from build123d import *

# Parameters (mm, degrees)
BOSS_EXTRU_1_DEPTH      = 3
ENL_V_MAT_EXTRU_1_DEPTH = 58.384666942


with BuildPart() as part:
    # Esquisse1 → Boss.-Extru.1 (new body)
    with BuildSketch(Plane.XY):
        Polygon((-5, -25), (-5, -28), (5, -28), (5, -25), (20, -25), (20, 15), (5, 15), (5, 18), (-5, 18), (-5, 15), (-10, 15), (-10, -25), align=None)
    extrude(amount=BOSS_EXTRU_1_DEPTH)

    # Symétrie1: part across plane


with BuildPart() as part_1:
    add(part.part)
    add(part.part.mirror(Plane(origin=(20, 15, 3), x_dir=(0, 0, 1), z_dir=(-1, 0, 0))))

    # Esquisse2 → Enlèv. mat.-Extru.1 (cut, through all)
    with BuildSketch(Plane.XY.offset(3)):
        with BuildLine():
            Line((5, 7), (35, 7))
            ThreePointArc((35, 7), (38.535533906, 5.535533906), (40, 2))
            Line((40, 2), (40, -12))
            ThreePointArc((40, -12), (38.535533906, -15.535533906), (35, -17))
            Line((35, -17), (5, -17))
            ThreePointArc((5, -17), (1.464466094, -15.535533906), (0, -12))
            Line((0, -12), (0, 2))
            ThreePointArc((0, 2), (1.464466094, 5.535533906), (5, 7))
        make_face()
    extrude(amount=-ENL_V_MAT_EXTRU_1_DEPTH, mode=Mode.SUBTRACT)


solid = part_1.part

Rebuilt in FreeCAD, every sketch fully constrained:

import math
import FreeCAD as App
import Part
import Sketcher

V = App.Vector
Q = App.Units.Quantity

doc = App.newDocument("Part")
body = doc.addObject("PartDesign::Body", "Body")

sketch1 = doc.addObject("Sketcher::SketchObject", "Sketch")
body.addObject(sketch1)
sketch1.AttachmentSupport = (doc.XY_Plane, [""])
sketch1.MapMode = "FlatFace"
sketch1.addGeometry(Part.LineSegment(V(-5, -25, 0), V(-5, -28, 0)), False)
sketch1.addGeometry(Part.LineSegment(V(-5, -28, 0), V(5, -28, 0)), False)
sketch1.addGeometry(Part.LineSegment(V(5, -28, 0), V(5, -25, 0)), False)
sketch1.addGeometry(Part.LineSegment(V(5, -25, 0), V(20, -25, 0)), False)
sketch1.addGeometry(Part.LineSegment(V(20, -25, 0), V(20, 15, 0)), False)
sketch1.addGeometry(Part.LineSegment(V(20, 15, 0), V(5, 15, 0)), False)
sketch1.addGeometry(Part.LineSegment(V(5, 15, 0), V(5, 18, 0)), False)
sketch1.addGeometry(Part.LineSegment(V(5, 18, 0), V(-5, 18, 0)), False)
sketch1.addGeometry(Part.LineSegment(V(-5, 18, 0), V(-5, 15, 0)), False)
sketch1.addGeometry(Part.LineSegment(V(-5, 15, 0), V(-10, 15, 0)), False)
sketch1.addGeometry(Part.LineSegment(V(-10, 15, 0), V(-10, -25, 0)), False)
sketch1.addGeometry(Part.LineSegment(V(-10, -25, 0), V(-5, -25, 0)), False)
sketch1.addConstraint(Sketcher.Constraint("Coincident", 0, 2, 1, 1))
sketch1.addConstraint(Sketcher.Constraint("Coincident", 1, 2, 2, 1))
sketch1.addConstraint(Sketcher.Constraint("Coincident", 2, 2, 3, 1))
sketch1.addConstraint(Sketcher.Constraint("Coincident", 3, 2, 4, 1))
sketch1.addConstraint(Sketcher.Constraint("Coincident", 4, 2, 5, 1))
sketch1.addConstraint(Sketcher.Constraint("Coincident", 5, 2, 6, 1))
sketch1.addConstraint(Sketcher.Constraint("Coincident", 6, 2, 7, 1))
sketch1.addConstraint(Sketcher.Constraint("Coincident", 7, 2, 8, 1))
sketch1.addConstraint(Sketcher.Constraint("Coincident", 8, 2, 9, 1))
sketch1.addConstraint(Sketcher.Constraint("Coincident", 9, 2, 10, 1))
sketch1.addConstraint(Sketcher.Constraint("Coincident", 10, 2, 11, 1))
sketch1.addConstraint(Sketcher.Constraint("Coincident", 11, 2, 0, 1))
sketch1.addConstraint(Sketcher.Constraint("Vertical", 0))
sketch1.addConstraint(Sketcher.Constraint("Horizontal", 1))
sketch1.addConstraint(Sketcher.Constraint("Vertical", 2))
sketch1.addConstraint(Sketcher.Constraint("Horizontal", 3))
sketch1.addConstraint(Sketcher.Constraint("Vertical", 4))
sketch1.addConstraint(Sketcher.Constraint("Horizontal", 5))
sketch1.addConstraint(Sketcher.Constraint("Vertical", 6))
sketch1.addConstraint(Sketcher.Constraint("Horizontal", 7))
sketch1.addConstraint(Sketcher.Constraint("Vertical", 8))
sketch1.addConstraint(Sketcher.Constraint("Horizontal", 9))
sketch1.addConstraint(Sketcher.Constraint("Vertical", 10))
sketch1.addConstraint(Sketcher.Constraint("Horizontal", 11))
sketch1.addConstraint(Sketcher.Constraint("Symmetric", 5, 2, 8, 2, -2))
sketch1.addConstraint(Sketcher.Constraint("Symmetric", 2, 2, 11, 2, -2))
sketch1.addConstraint(Sketcher.Constraint("Vertical", 2, 2, 5, 2))
sketch1.addConstraint(Sketcher.Constraint("Equal", 2, 6))
sketch1.addConstraint(Sketcher.Constraint("DistanceX", 1, 1, 1, 2, Q("10 mm")))
sketch1.addConstraint(Sketcher.Constraint("DistanceX", 3, 1, 3, 2, Q("15 mm")))
sketch1.addConstraint(Sketcher.Constraint("DistanceX", 9, 2, 9, 1, Q("5 mm")))
sketch1.addConstraint(Sketcher.Constraint("DistanceY", 0, 2, 0, 1, Q("3 mm")))
sketch1.addConstraint(Sketcher.Constraint("DistanceY", 4, 1, 4, 2, Q("40 mm")))
sketch1.addConstraint(Sketcher.Constraint("DistanceY", 0, 2, -1, 1, Q("28 mm")))
pad1 = doc.addObject("PartDesign::Pad", "Pad")
body.addObject(pad1)
pad1.Profile = sketch1
pad1.Length = 3
body2 = doc.addObject("PartDesign::Body", "Body001")
doc.recompute()

body2.BaseFeature = body
doc.recompute()

mirroring = doc.addObject("Part::Mirroring", "Mirroring")
mirroring.Source = body
mirroring.Base = V(20, 15, 3)
mirroring.Normal = V(-1, 0, 0)
body3 = doc.addObject("PartDesign::Body", "Body002")
body3.BaseFeature = mirroring
boolean = doc.addObject("PartDesign::Boolean", "Boolean")
body2.addObject(boolean)
boolean.Type = "Fuse"
boolean.addObjects([body3])
doc.recompute()

sketch2 = doc.addObject("Sketcher::SketchObject", "Sketch001")
body2.addObject(sketch2)
sketch2.AttachmentSupport = (doc.getObject("XY_Plane001"), [""])
sketch2.MapMode = "FlatFace"
sketch2.AttachmentOffset = App.Placement(V(0, 0, 3), App.Rotation())
sketch2.addGeometry(Part.LineSegment(V(35, 7, 0), V(5, 7, 0)), False)
sketch2.addGeometry(Part.ArcOfCircle(Part.Circle(V(5, 2, 0), V(0, 0, 1), 5), math.radians(90), math.radians(180)), False)
sketch2.addGeometry(Part.LineSegment(V(0, 2, 0), V(0, -12, 0)), False)
sketch2.addGeometry(Part.ArcOfCircle(Part.Circle(V(5, -12, 0), V(0, 0, 1), 5), math.radians(180), math.radians(270)), False)
sketch2.addGeometry(Part.LineSegment(V(5, -17, 0), V(35, -17, 0)), False)
sketch2.addGeometry(Part.ArcOfCircle(Part.Circle(V(35, -12, 0), V(0, 0, 1), 5), math.radians(-90), math.radians(0)), False)
sketch2.addGeometry(Part.LineSegment(V(40, -12, 0), V(40, 2, 0)), False)
sketch2.addGeometry(Part.ArcOfCircle(Part.Circle(V(35, 2, 0), V(0, 0, 1), 5), math.radians(0), math.radians(90)), False)
sketch2.addConstraint(Sketcher.Constraint("Tangent", 0, 2, 1, 1))
sketch2.addConstraint(Sketcher.Constraint("Tangent", 1, 2, 2, 1))
sketch2.addConstraint(Sketcher.Constraint("Tangent", 2, 2, 3, 1))
sketch2.addConstraint(Sketcher.Constraint("Tangent", 3, 2, 4, 1))
sketch2.addConstraint(Sketcher.Constraint("Tangent", 4, 2, 5, 1))
sketch2.addConstraint(Sketcher.Constraint("Tangent", 5, 2, 6, 1))
sketch2.addConstraint(Sketcher.Constraint("Tangent", 6, 2, 7, 1))
sketch2.addConstraint(Sketcher.Constraint("Tangent", 7, 2, 0, 1))
sketch2.addConstraint(Sketcher.Constraint("Horizontal", 0))
sketch2.addConstraint(Sketcher.Constraint("Vertical", 2))
sketch2.addConstraint(Sketcher.Constraint("Horizontal", 4))
sketch2.addConstraint(Sketcher.Constraint("Vertical", 6))
sketch2.addConstraint(Sketcher.Constraint("Equal", 1, 3))
sketch2.addConstraint(Sketcher.Constraint("Equal", 3, 5))
sketch2.addConstraint(Sketcher.Constraint("Equal", 5, 7))
sketch2.addConstraint(Sketcher.Constraint("PointOnObject", 1, 2, -2))
sketch2.addConstraint(Sketcher.Constraint("Radius", 1, Q("5 mm")))
sketch2.addConstraint(Sketcher.Constraint("DistanceX", 0, 2, 0, 1, Q("30 mm")))
sketch2.addConstraint(Sketcher.Constraint("DistanceY", 2, 2, 2, 1, Q("14 mm")))
sketch2.addConstraint(Sketcher.Constraint("DistanceY", -1, 1, 1, 3, Q("2 mm")))
pocket1 = doc.addObject("PartDesign::Pocket", "Pocket")
body2.addObject(pocket1)
pocket1.Profile = sketch2
pocket1.Type = "ThroughAll"
mirroring.Visibility = False

doc.recompute()
